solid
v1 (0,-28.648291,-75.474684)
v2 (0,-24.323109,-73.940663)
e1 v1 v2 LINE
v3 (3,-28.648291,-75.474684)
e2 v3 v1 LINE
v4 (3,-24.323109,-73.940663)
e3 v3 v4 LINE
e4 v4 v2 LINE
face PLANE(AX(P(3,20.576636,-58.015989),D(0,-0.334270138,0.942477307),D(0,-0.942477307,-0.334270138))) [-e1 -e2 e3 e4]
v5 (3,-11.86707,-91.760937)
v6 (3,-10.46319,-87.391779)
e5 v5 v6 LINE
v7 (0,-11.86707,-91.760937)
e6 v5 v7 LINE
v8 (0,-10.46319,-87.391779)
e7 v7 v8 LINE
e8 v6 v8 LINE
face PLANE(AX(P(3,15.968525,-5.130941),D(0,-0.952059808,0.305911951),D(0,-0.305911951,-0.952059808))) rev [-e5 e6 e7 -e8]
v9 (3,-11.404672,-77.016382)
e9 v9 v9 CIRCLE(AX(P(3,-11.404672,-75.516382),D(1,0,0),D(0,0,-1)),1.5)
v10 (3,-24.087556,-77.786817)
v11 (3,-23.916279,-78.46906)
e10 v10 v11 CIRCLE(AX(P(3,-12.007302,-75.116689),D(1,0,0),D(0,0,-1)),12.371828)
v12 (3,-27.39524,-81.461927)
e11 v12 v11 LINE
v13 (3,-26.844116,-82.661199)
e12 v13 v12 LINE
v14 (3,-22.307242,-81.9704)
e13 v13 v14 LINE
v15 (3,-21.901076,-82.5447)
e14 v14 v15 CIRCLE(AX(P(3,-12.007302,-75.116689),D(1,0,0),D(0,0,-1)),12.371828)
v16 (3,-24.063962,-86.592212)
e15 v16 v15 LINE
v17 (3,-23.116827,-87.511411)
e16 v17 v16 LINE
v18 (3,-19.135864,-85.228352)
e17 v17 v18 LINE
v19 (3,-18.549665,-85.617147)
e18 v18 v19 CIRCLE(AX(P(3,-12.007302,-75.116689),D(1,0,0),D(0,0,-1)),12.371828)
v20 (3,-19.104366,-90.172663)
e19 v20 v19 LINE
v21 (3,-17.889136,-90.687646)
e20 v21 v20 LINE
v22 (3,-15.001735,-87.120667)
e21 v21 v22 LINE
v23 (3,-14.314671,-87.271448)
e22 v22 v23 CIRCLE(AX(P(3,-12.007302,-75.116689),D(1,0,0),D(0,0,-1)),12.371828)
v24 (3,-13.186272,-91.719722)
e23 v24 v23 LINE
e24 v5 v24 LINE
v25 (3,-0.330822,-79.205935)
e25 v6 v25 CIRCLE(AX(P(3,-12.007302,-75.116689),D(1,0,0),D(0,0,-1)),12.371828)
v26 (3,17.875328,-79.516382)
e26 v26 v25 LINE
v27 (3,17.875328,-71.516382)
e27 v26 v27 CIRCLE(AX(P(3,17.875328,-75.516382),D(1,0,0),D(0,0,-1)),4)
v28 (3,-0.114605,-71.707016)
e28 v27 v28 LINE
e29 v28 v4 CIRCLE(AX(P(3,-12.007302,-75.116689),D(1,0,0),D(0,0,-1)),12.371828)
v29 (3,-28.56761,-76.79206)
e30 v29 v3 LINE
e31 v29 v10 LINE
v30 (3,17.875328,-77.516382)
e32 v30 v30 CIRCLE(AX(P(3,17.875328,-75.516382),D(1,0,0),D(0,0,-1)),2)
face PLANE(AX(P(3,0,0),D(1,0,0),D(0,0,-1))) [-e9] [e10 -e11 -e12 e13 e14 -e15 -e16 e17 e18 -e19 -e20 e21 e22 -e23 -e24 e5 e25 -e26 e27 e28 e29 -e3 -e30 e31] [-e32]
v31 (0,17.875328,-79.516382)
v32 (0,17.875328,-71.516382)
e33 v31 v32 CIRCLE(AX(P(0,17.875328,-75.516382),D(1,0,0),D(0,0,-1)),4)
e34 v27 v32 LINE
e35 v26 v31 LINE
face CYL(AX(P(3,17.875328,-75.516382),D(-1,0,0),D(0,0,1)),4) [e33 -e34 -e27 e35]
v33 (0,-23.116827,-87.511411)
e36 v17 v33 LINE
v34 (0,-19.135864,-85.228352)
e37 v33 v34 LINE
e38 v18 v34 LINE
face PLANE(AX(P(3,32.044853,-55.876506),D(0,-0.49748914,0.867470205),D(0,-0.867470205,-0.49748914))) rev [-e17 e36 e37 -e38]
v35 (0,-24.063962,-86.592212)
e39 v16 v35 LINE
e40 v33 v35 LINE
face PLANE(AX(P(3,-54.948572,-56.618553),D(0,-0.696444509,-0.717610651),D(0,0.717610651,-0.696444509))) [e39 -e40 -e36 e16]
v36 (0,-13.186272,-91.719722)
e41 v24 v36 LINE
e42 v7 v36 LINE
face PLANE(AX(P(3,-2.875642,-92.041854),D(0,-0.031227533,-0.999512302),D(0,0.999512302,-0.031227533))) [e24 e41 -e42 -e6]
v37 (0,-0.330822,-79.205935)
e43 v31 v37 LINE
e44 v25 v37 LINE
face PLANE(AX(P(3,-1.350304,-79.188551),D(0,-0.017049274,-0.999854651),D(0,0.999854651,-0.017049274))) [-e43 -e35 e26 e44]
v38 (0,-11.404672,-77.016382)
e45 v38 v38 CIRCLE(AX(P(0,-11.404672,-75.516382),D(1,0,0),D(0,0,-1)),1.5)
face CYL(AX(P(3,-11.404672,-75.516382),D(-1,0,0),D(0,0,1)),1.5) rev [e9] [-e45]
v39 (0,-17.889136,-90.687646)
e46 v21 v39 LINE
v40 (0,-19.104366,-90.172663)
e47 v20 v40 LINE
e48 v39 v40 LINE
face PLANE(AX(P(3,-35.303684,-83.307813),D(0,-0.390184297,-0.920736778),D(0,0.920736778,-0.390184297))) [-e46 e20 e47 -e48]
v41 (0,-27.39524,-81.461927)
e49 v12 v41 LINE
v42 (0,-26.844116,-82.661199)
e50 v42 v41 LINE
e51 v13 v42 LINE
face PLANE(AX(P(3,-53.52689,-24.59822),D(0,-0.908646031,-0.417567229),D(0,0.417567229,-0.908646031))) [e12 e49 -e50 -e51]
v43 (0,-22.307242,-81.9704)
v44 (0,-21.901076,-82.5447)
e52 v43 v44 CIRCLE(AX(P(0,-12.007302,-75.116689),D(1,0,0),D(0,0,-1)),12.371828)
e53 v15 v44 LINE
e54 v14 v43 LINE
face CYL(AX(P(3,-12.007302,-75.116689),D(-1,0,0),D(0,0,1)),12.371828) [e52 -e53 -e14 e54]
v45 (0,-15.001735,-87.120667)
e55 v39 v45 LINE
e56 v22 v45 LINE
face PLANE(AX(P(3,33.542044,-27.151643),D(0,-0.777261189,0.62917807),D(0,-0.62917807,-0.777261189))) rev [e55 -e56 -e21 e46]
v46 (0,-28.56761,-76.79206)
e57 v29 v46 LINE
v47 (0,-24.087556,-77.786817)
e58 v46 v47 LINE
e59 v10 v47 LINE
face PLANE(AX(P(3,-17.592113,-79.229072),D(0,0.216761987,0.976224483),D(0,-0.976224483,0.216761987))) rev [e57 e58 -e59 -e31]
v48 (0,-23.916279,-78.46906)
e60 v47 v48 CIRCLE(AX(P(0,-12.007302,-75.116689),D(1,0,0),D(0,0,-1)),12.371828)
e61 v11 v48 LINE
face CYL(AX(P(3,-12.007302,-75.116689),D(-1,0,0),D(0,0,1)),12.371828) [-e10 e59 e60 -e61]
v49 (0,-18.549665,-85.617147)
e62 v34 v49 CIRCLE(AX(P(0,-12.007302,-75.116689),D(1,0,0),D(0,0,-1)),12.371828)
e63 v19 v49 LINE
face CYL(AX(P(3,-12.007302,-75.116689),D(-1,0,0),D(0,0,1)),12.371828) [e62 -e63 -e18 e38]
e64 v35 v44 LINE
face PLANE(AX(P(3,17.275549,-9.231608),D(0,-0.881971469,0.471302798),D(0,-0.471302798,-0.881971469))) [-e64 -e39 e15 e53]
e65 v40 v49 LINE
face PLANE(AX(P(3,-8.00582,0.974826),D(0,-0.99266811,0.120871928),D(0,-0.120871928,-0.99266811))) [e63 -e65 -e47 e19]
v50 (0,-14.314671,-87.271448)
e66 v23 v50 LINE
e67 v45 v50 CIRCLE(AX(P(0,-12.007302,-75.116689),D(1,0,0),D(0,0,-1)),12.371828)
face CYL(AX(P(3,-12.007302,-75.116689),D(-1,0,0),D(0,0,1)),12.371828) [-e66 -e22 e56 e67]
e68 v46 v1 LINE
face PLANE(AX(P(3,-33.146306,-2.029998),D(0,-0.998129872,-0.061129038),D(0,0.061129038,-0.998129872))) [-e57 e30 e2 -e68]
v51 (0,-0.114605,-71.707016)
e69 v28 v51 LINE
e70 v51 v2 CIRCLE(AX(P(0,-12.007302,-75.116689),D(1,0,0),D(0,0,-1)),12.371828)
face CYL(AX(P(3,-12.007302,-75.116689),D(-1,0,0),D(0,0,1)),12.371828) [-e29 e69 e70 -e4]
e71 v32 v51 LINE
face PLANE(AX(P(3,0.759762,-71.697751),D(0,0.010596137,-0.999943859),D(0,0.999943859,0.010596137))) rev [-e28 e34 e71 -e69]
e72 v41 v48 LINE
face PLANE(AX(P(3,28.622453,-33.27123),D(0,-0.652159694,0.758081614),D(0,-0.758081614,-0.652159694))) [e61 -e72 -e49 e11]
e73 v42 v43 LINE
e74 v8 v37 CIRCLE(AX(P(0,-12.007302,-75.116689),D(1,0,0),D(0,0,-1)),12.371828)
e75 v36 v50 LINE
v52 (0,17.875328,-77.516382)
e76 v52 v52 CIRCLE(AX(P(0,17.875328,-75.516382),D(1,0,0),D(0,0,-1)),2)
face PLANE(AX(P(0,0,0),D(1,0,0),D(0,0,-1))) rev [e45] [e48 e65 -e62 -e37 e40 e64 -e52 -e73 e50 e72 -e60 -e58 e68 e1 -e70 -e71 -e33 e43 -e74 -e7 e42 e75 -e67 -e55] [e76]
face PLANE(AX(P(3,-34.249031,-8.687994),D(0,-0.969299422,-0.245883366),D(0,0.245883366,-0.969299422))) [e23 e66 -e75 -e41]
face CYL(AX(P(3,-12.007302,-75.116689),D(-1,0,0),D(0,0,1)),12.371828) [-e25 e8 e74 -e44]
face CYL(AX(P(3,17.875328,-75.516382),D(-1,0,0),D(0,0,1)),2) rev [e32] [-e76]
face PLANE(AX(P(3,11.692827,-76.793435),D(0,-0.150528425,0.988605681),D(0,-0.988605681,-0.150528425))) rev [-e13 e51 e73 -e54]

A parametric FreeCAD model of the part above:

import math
import FreeCAD as App
import Part
import Sketcher

V = App.Vector
Q = App.Units.Quantity

doc = App.newDocument("Part")
body = doc.addObject("PartDesign::Body", "Body")

sketch1 = body.newObject("Sketcher::SketchObject", "Sketch")
sketch1.AttachmentSupport = (doc.getObject("YZ_Plane"), [""])
sketch1.MapMode = "FlatFace"
sketch1.addGeometry([
    Part.ArcOfCircle(Part.Circle(V(17.875328, -75.516382, 0), V(0, 0, 1), 4), math.radians(-90), math.radians(90)),
    Part.LineSegment(V(17.875328, -71.516382, 0), V(-0.114605, -71.707016, 0)),
    Part.ArcOfCircle(Part.Circle(V(-12.007302, -75.116689, 0), V(0, 0, 1), 12.371828), math.radians(15.997759), math.radians(174.545414)),
    Part.LineSegment(V(-24.323109, -73.940663, 0), V(-28.648291, -75.474684, 0)),
    Part.LineSegment(V(-28.648291, -75.474684, 0), V(-28.56761, -76.79206, 0)),
    Part.LineSegment(V(-28.56761, -76.79206, 0), V(-24.087556, -77.786817, 0)),
    Part.ArcOfCircle(Part.Circle(V(-12.007302, -75.116689, 0), V(0, 0, 1), 12.371828), math.radians(-167.536172), math.radians(-164.278116)),
    Part.LineSegment(V(-23.916279, -78.46906, 0), V(-27.39524, -81.461927, 0)),
    Part.LineSegment(V(-27.39524, -81.461927, 0), V(-26.844116, -82.661199, 0)),
    Part.LineSegment(V(-26.844116, -82.661199, 0), V(-22.307242, -81.9704, 0)),
    Part.ArcOfCircle(Part.Circle(V(-12.007302, -75.116689, 0), V(0, 0, 1), 12.371828), math.radians(-146.359701), math.radians(-143.101645)),
    Part.LineSegment(V(-21.901076, -82.5447, 0), V(-24.063962, -86.592212, 0)),
    Part.LineSegment(V(-24.063962, -86.592212, 0), V(-23.116827, -87.511411, 0)),
    Part.LineSegment(V(-23.116827, -87.511411, 0), V(-19.135864, -85.228352, 0)),
    Part.ArcOfCircle(Part.Circle(V(-12.007302, -75.116688, 0), V(0, 0, 1), 12.371828), math.radians(-125.183231), math.radians(-121.925175)),
    Part.LineSegment(V(-18.549665, -85.617147, 0), V(-19.104366, -90.172663, 0)),
    Part.LineSegment(V(-19.104366, -90.172663, 0), V(-17.889136, -90.687646, 0)),
    Part.LineSegment(V(-17.889136, -90.687646, 0), V(-15.001735, -87.120667, 0)),
    Part.ArcOfCircle(Part.Circle(V(-12.007302, -75.116689, 0), V(0, 0, 1), 12.371827), math.radians(-104.00676), math.radians(-100.748704)),
    Part.LineSegment(V(-14.314671, -87.271448, 0), V(-13.186272, -91.719722, 0)),
    Part.LineSegment(V(-13.186272, -91.719722, 0), V(-11.86707, -91.760937, 0)),
    Part.LineSegment(V(-11.86707, -91.760937, 0), V(-10.46319, -87.391779, 0)),
    Part.ArcOfCircle(Part.Circle(V(-12.007302, -75.116689, 0), V(0, 0, 1), 12.371828), math.radians(-82.83029), math.radians(-19.300878)),
    Part.LineSegment(V(-0.330822, -79.205935, 0), V(17.875328, -79.516382, 0)),
    Part.Circle(V(-11.404672, -75.516382, 0), V(0, 0, 1), 1.5),
    Part.Circle(V(17.875328, -75.516382, 0), V(0, 0, 1), 2),
], False)
sketch1.addConstraint([
    Sketcher.Constraint("Coincident", 0, 2, 1, 1),
    Sketcher.Constraint("Coincident", 1, 2, 2, 1),
    Sketcher.Constraint("Coincident", 2, 2, 3, 1),
    Sketcher.Constraint("Coincident", 3, 2, 4, 1),
    Sketcher.Constraint("Coincident", 4, 2, 5, 1),
    Sketcher.Constraint("Coincident", 5, 2, 6, 1),
    Sketcher.Constraint("Coincident", 6, 2, 7, 1),
    Sketcher.Constraint("Coincident", 7, 2, 8, 1),
    Sketcher.Constraint("Coincident", 8, 2, 9, 1),
    Sketcher.Constraint("Coincident", 9, 2, 10, 1),
    Sketcher.Constraint("Coincident", 10, 2, 11, 1),
    Sketcher.Constraint("Coincident", 11, 2, 12, 1),
    Sketcher.Constraint("Coincident", 12, 2, 13, 1),
    Sketcher.Constraint("Coincident", 13, 2, 14, 1),
    Sketcher.Constraint("Coincident", 14, 2, 15, 1),
    Sketcher.Constraint("Coincident", 15, 2, 16, 1),
    Sketcher.Constraint("Coincident", 16, 2, 17, 1),
    Sketcher.Constraint("Coincident", 17, 2, 18, 1),
    Sketcher.Constraint("Coincident", 18, 2, 19, 1),
    Sketcher.Constraint("Coincident", 19, 2, 20, 1),
    Sketcher.Constraint("Coincident", 20, 2, 21, 1),
    Sketcher.Constraint("Coincident", 21, 2, 22, 1),
    Sketcher.Constraint("Coincident", 22, 2, 23, 1),
    Sketcher.Constraint("Coincident", 23, 2, 0, 1),
    Sketcher.Constraint("Coincident", 6, 3, 2, 3),
    Sketcher.Constraint("Coincident", 10, 3, 2, 3),
    Sketcher.Constraint("Coincident", 14, 3, 2, 3),
    Sketcher.Constraint("Coincident", 18, 3, 2, 3),
    Sketcher.Constraint("Coincident", 22, 3, 2, 3),
    Sketcher.Constraint("Coincident", 25, 3, 0, 3),
    Sketcher.Constraint("Diameter", 24, Q("3 mm")),
    Sketcher.Constraint("Diameter", 25, Q("4 mm")),
    Sketcher.Constraint("Radius", 0, Q("4 mm")),
    Sketcher.Constraint("DistanceY", 24, 3, 0, 2, Q("4 mm")),
    Sketcher.Constraint("Radius", 10, Q("12.371828 mm")),
    Sketcher.Constraint("Radius", 14, Q("12.371828 mm")),
    Sketcher.Constraint("DistanceX", 24, 3, 25, 3, Q("29.28 mm")),
    Sketcher.Constraint("DistanceX", 24, 3, 0, 2, Q("29.28 mm")),
    Sketcher.Constraint("Radius", 2, Q("12.371828 mm")),
    Sketcher.Constraint("Radius", 6, Q("12.371828 mm")),
    Sketcher.Constraint("Radius", 18, Q("12.371827 mm")),
    Sketcher.Constraint("Radius", 22, Q("12.371828 mm")),
    Sketcher.Constraint("DistanceY", 6, 2, 4, 2, Q("1.677 mm")),
    Sketcher.Constraint("DistanceX", 14, 3, -1, 1, Q("12.007302 mm")),
    Sketcher.Constraint("DistanceY", 8, 2, -1, 1, Q("82.661199 mm")),
    Sketcher.Constraint("DistanceY", 9, 2, -1, 1, Q("81.9704 mm")),
    Sketcher.Constraint("DistanceY", 10, 2, -1, 1, Q("82.5447 mm")),
    Sketcher.Constraint("DistanceX", 4, 2, 2, 2, Q("4.244502 mm")),
    Sketcher.Constraint("DistanceY", 12, 2, 11, 2, Q("0.919199 mm")),
    Sketcher.Constraint("DistanceX", 13, 2, 14, 2, Q("0.5862 mm")),
    Sketcher.Constraint("DistanceX", 15, 2, 14, 2, Q("0.554701 mm")),
    Sketcher.Constraint("DistanceY", 16, 2, 14, 2, Q("5.070499 mm")),
    Sketcher.Constraint("DistanceX", 16, 2, 17, 2, Q("2.887401 mm")),
    Sketcher.Constraint("DistanceY", 18, 2, 14, 2, Q("1.654301 mm")),
    Sketcher.Constraint("DistanceX", 18, 2, 19, 2, Q("1.128399 mm")),
    Sketcher.Constraint("DistanceX", 19, 2, 20, 2, Q("1.319201 mm")),
    Sketcher.Constraint("DistanceX", -1, 1, 0, 3, Q("17.875328 mm")),
    Sketcher.Constraint("DistanceY", 0, 3, -1, 1, Q("75.516382 mm")),
    Sketcher.Constraint("DistanceY", 2, 3, -1, 1, Q("75.116689 mm")),
    Sketcher.Constraint("DistanceX", 2, 2, -1, 1, Q("24.323109 mm")),
    Sketcher.Constraint("DistanceX", 3, 2, -1, 1, Q("28.648291 mm")),
    Sketcher.Constraint("DistanceY", 4, 2, -1, 1, Q("76.79206 mm")),
    Sketcher.Constraint("DistanceX", 7, 2, -1, 1, Q("27.39524 mm")),
    Sketcher.Constraint("DistanceY", 11, 2, -1, 1, Q("86.592212 mm")),
    Sketcher.Constraint("DistanceY", 13, 2, -1, 1, Q("85.228352 mm")),
    Sketcher.Constraint("DistanceY", 19, 2, -1, 1, Q("91.719722 mm")),
    Sketcher.Constraint("DistanceX", 21, 2, -1, 1, Q("10.46319 mm")),
    Sketcher.Constraint("DistanceX", -1, 1, 23, 2, Q("17.875328 mm")),
    Sketcher.Constraint("DistanceY", 3, 2, 2, 2, Q("1.53402 mm")),
    Sketcher.Constraint("DistanceY", 7, 2, 5, 2, Q("3.675111 mm")),
    Sketcher.Constraint("DistanceX", 8, 2, 5, 2, Q("2.756559 mm")),
    Sketcher.Constraint("DistanceX", 8, 2, 10, 2, Q("4.943039 mm")),
    Sketcher.Constraint("DistanceX", 11, 2, 9, 2, Q("1.75672 mm")),
    Sketcher.Constraint("DistanceX", 12, 2, 10, 2, Q("1.215751 mm")),
    Sketcher.Constraint("DistanceY", 15, 2, 13, 2, Q("4.944312 mm")),
    Sketcher.Constraint("DistanceX", 15, 2, 16, 2, Q("1.21523 mm")),
    Sketcher.Constraint("DistanceY", 20, 2, 18, 2, Q("4.489489 mm")),
    Sketcher.Constraint("DistanceY", 22, 2, 1, 2, Q("7.498919 mm")),
    Sketcher.Constraint("DistanceX", 24, 3, 22, 2, Q("11.07385 mm")),
])
pad1 = body.newObject("PartDesign::Pad", "Pad")
pad1.Profile = sketch1
pad1.Length = 3

doc.recompute()
